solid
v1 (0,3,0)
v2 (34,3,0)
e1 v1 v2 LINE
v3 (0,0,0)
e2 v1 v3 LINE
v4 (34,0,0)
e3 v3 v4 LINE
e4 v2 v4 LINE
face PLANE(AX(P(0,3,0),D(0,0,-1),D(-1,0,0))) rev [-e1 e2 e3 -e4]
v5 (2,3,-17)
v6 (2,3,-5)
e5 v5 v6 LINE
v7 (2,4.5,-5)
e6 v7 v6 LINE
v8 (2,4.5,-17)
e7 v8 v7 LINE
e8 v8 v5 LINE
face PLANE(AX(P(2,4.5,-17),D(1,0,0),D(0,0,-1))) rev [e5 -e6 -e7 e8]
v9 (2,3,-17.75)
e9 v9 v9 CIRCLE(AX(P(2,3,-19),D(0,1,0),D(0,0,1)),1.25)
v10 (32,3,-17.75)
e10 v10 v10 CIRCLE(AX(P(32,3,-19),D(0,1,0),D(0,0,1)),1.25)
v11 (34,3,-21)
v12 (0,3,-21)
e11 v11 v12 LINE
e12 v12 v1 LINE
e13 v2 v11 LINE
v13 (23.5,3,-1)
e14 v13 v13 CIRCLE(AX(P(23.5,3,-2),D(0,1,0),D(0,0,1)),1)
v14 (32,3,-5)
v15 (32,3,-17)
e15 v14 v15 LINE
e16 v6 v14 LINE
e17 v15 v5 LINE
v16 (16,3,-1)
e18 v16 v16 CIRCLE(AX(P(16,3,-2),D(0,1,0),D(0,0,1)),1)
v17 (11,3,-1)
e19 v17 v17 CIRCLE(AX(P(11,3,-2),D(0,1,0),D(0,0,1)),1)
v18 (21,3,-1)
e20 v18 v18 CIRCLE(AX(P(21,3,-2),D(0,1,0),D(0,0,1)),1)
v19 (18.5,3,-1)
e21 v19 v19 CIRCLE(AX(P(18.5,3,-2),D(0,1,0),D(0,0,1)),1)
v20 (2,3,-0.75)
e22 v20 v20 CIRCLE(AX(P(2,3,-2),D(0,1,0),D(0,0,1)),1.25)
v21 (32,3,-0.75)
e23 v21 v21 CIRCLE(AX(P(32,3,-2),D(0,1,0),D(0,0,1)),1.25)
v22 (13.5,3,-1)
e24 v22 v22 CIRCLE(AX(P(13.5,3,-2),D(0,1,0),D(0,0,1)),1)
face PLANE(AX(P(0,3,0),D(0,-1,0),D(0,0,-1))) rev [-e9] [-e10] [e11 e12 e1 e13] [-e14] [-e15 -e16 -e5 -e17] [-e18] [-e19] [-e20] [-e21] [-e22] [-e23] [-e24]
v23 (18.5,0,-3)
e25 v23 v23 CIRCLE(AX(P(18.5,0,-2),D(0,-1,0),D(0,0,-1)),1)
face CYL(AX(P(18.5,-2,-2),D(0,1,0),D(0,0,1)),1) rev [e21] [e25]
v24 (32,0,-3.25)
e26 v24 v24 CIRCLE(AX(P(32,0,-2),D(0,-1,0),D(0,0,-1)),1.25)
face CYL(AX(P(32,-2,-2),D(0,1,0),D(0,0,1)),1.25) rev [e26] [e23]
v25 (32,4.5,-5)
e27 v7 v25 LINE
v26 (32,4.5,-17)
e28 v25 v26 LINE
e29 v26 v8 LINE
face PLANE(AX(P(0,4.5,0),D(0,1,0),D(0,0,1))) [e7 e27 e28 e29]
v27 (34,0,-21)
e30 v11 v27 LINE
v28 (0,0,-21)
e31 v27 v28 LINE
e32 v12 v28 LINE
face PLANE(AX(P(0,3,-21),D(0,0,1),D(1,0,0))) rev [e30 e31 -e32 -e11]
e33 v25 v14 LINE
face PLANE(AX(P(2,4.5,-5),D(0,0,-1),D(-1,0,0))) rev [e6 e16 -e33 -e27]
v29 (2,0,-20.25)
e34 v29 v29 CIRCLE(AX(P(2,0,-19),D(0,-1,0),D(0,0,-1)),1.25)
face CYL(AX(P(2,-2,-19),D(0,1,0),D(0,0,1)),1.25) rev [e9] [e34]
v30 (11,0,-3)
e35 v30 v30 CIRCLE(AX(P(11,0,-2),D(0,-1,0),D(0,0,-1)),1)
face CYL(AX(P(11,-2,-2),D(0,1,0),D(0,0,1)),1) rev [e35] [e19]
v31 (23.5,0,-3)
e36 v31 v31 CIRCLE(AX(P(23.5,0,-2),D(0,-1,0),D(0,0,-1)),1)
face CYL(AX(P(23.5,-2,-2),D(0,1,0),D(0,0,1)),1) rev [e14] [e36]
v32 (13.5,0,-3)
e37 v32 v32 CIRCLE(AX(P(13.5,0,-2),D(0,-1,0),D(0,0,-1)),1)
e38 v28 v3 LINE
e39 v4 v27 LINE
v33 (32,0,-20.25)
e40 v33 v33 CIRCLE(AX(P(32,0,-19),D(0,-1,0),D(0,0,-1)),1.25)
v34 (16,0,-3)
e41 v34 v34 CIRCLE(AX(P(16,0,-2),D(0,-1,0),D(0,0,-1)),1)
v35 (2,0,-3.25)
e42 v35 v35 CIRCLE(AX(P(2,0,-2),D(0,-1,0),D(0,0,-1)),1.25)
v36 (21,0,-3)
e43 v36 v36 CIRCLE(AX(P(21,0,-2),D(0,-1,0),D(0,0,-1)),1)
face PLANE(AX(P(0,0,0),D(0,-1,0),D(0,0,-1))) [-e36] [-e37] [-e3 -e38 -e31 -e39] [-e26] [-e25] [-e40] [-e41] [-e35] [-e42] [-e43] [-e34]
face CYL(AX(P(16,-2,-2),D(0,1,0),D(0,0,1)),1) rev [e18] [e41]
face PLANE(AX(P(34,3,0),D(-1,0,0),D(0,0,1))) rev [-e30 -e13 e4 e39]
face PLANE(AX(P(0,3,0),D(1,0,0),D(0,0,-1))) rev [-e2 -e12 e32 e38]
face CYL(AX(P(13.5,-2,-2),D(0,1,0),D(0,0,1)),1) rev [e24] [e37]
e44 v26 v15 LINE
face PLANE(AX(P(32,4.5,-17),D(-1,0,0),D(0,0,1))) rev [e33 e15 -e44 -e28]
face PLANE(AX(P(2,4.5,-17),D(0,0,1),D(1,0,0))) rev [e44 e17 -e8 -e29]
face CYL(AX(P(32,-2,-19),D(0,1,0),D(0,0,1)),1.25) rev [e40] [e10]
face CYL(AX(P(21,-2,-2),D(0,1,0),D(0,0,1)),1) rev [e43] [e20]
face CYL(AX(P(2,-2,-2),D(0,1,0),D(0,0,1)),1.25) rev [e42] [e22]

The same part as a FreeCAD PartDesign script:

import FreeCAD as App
import Part
import Sketcher
from FreeCAD import Vector
Q = App.Units.Quantity


def add_polygon(sketch, points):
    """Adds a closed chain of lines whose ends are joined by coincident constraints."""
    first, n = sketch.GeometryCount, len(points)
    for a, b in zip(points, points[1:] + points[:1]):
        sketch.addGeometry(Part.LineSegment(App.Vector(*a, 0), App.Vector(*b, 0)), False)
    for i in range(n):
        sketch.addConstraint(Sketcher.Constraint("Coincident", first + i, 2, first + (i + 1) % n, 1))

doc = App.newDocument("Part")
params = doc.addObject("Spreadsheet::Sheet", "Params")
for row, (alias, value) in enumerate([
    ("sketch1_width", "34 mm"),
    ("sketch1_height", "21 mm"),
    ("pad1_length", "3 mm"),
    ("sketch2_width", "30 mm"),
    ("sketch2_height", "12 mm"),
    ("pad2_length", "1.5 mm"),
    ("sketch3_diameter", "2 mm"),
    ("sketch3_diameter2", "2.5 mm"),
    ("pocket1_length", "5 mm"),
], start=1):
    params.set(f"A{row}", alias)
    params.set(f"B{row}", "=" + value)
    params.setAlias(f"B{row}", alias)

body = doc.addObject("PartDesign::Body", "Body")

sketch1 = body.newObject("Sketcher::SketchObject", "Sketch")
sketch1.AttachmentSupport = (doc.getObject("XZ_Plane"), [""])
sketch1.MapMode = "FlatFace"
add_polygon(sketch1, [(0, -21), (0, 0), (34, 0), (34, -21)])
sketch1.addConstraint([
    Sketcher.Constraint("Vertical", 0),
    Sketcher.Constraint("Horizontal", 1),
    Sketcher.Constraint("Vertical", 2),
    Sketcher.Constraint("Horizontal", 3),
    Sketcher.Constraint("Coincident", 0, 2, -1, 1),
    Sketcher.Constraint("DistanceX", 1, 1, 1, 2, Q("34 mm")),
    Sketcher.Constraint("DistanceY", 0, 1, 0, 2, Q("21 mm")),
])
sketch1.setExpression("Constraints[9]", "Params.sketch1_width")
sketch1.setExpression("Constraints[10]", "Params.sketch1_height")
pad1 = body.newObject("PartDesign::Pad", "Pad")
pad1.Profile = sketch1
pad1.setExpression("Length", "Params.pad1_length")
pad1.Reversed = True

sketch2 = body.newObject("Sketcher::SketchObject", "Sketch001")
sketch2.AttachmentSupport = (doc.getObject("XZ_Plane"), [""])
sketch2.MapMode = "FlatFace"
sketch2.AttachmentOffset = App.Placement(Vector(0, 0, -3), App.Rotation())
add_polygon(sketch2, [(2, -17), (2, -5), (32, -5), (32, -17)])
sketch2.addConstraint([
    Sketcher.Constraint("Vertical", 0),
    Sketcher.Constraint("Horizontal", 1),
    Sketcher.Constraint("Vertical", 2),
    Sketcher.Constraint("Horizontal", 3),
    Sketcher.Constraint("DistanceX", 1, 1, 1, 2, Q("30 mm")),
    Sketcher.Constraint("DistanceY", 0, 1, 0, 2, Q("12 mm")),
    Sketcher.Constraint("DistanceX", -1, 1, 0, 2, Q("2 mm")),
    Sketcher.Constraint("DistanceY", 0, 2, -1, 1, Q("5 mm")),
])
sketch2.setExpression("Constraints[8]", "Params.sketch2_width")
sketch2.setExpression("Constraints[9]", "Params.sketch2_height")
pad2 = body.newObject("PartDesign::Pad", "Pad001")
pad2.Profile = sketch2
pad2.setExpression("Length", "Params.pad2_length")
pad2.Reversed = True

sketch3 = body.newObject("Sketcher::SketchObject", "Sketch002")
sketch3.AttachmentSupport = (doc.getObject("XZ_Plane"), [""])
sketch3.MapMode = "FlatFace"
sketch3.AttachmentOffset = App.Placement(Vector(0, 0, -3), App.Rotation())
sketch3.addGeometry([
    Part.Circle(Vector(11, -2, 0), Vector(0, 0, 1), 1),
    Part.Circle(Vector(13.5, -2, 0), Vector(0, 0, 1), 1),
    Part.Circle(Vector(16, -2, 0), Vector(0, 0, 1), 1),
    Part.Circle(Vector(18.5, -2, 0), Vector(0, 0, 1), 1),
    Part.Circle(Vector(21, -2, 0), Vector(0, 0, 1), 1),
    Part.Circle(Vector(23.5, -2, 0), Vector(0, 0, 1), 1),
    Part.Circle(Vector(2, -2, 0), Vector(0, 0, 1), 1.2),
    Part.Circle(Vector(2, -19, 0), Vector(0, 0, 1), 1.2),
    Part.Circle(Vector(32, -19, 0), Vector(0, 0, 1), 1.2),
    Part.Circle(Vector(32, -2, 0), Vector(0, 0, 1), 1.2),
], False)
sketch3.addConstraint([
    Sketcher.Constraint("Equal", 0, 1),
    Sketcher.Constraint("Equal", 1, 2),
    Sketcher.Constraint("Equal", 2, 3),
    Sketcher.Constraint("Equal", 3, 4),
    Sketcher.Constraint("Equal", 4, 5),
    Sketcher.Constraint("Equal", 6, 7),
    Sketcher.Constraint("Equal", 7, 8),
    Sketcher.Constraint("Equal", 8, 9),
    Sketcher.Constraint("Horizontal", 0, 3, 1, 3),
    Sketcher.Constraint("Horizontal", 1, 3, 2, 3),
    Sketcher.Constraint("Horizontal", 2, 3, 3, 3),
    Sketcher.Constraint("Horizontal", 3, 3, 4, 3),
    Sketcher.Constraint("Horizontal", 4, 3, 5, 3),
    Sketcher.Constraint("Horizontal", 5, 3, 6, 3),
    Sketcher.Constraint("Horizontal", 7, 3, 8, 3),
    Sketcher.Constraint("Horizontal", 6, 3, 9, 3),
    Sketcher.Constraint("Vertical", 6, 3, 7, 3),
    Sketcher.Constraint("Vertical", 8, 3, 9, 3),
    Sketcher.Constraint("Diameter", 0, Q("2 mm")),
    Sketcher.Constraint("Diameter", 6, Q("2.5 mm")),
    Sketcher.Constraint("DistanceX", -1, 1, 0, 3, Q("11 mm")),
    Sketcher.Constraint("DistanceY", 0, 3, -1, 1, Q("2 mm")),
    Sketcher.Constraint("DistanceX", -1, 1, 2, 3, Q("16 mm")),
    Sketcher.Constraint("DistanceX", -1, 1, 4, 3, Q("21 mm")),
    Sketcher.Constraint("DistanceX", -1, 1, 6, 3, Q("2 mm")),
    Sketcher.Constraint("DistanceY", 7, 3, -1, 1, Q("19 mm")),
    Sketcher.Constraint("DistanceX", -1, 1, 8, 3, Q("32 mm")),
    Sketcher.Constraint("DistanceX", 1, 3, 3, 3, Q("5 mm")),
    Sketcher.Constraint("DistanceX", 3, 3, 5, 3, Q("5 mm")),
    Sketcher.Constraint("DistanceX", -1, 1, 1, 3, Q("13.5 mm")),
])
sketch3.setExpression("Constraints[18]", "Params.sketch3_diameter")
sketch3.setExpression("Constraints[19]", "Params.sketch3_diameter2")
pocket1 = body.newObject("PartDesign::Pocket", "Pocket")
pocket1.Profile = sketch3
pocket1.setExpression("Length", "Params.pocket1_length")
pocket1.Reversed = True

doc.recompute()
